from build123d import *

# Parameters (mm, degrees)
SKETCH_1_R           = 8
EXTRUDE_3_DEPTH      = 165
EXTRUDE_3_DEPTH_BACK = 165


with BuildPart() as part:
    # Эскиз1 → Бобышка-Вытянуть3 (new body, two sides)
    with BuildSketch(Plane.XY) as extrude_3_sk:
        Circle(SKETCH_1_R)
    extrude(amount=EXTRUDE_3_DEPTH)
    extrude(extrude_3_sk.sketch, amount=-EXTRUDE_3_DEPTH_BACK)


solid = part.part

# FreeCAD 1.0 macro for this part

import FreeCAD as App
import Part
import Sketcher
from FreeCAD import Vector

doc = App.newDocument("Part")
params = doc.addObject("Spreadsheet::Sheet", "Params")
for row, (alias, value) in enumerate([
    ("sketch1_diameter", "16 mm"),
    ("pad1_length", "165 mm"),
    ("pad1_length2", "165 mm"),
], start=1):
    params.set(f"A{row}", alias)
    params.set(f"B{row}", "=" + value)
    params.setAlias(f"B{row}", alias)

body = doc.addObject("PartDesign::Body", "Body")

# Sketch on XY plane
sketch1 = body.newObject("Sketcher::SketchObject", "Sketch")
sketch1.AttachmentSupport = (doc.getObject("XY_Plane"), [""])
sketch1.MapMode = "FlatFace"
sketch1.addGeometry(Part.Circle(Vector(0, 0, 0), Vector(0, 0, 1), 8), False)
sketch1.addConstraint([
    Sketcher.Constraint("Coincident", 0, 3, -1, 1),
    Sketcher.Constraint("Diameter", 0, 16.0),
])
sketch1.setExpression("Constraints[1]", "Params.sketch1_diameter")
pad1 = body.newObject("PartDesign::Pad", "Pad")
pad1.Profile = sketch1
pad1.Type = "TwoLengths"
pad1.setExpression("Length", "Params.pad1_length")
pad1.setExpression("Length2", "Params.pad1_length2")

doc.recompute()
